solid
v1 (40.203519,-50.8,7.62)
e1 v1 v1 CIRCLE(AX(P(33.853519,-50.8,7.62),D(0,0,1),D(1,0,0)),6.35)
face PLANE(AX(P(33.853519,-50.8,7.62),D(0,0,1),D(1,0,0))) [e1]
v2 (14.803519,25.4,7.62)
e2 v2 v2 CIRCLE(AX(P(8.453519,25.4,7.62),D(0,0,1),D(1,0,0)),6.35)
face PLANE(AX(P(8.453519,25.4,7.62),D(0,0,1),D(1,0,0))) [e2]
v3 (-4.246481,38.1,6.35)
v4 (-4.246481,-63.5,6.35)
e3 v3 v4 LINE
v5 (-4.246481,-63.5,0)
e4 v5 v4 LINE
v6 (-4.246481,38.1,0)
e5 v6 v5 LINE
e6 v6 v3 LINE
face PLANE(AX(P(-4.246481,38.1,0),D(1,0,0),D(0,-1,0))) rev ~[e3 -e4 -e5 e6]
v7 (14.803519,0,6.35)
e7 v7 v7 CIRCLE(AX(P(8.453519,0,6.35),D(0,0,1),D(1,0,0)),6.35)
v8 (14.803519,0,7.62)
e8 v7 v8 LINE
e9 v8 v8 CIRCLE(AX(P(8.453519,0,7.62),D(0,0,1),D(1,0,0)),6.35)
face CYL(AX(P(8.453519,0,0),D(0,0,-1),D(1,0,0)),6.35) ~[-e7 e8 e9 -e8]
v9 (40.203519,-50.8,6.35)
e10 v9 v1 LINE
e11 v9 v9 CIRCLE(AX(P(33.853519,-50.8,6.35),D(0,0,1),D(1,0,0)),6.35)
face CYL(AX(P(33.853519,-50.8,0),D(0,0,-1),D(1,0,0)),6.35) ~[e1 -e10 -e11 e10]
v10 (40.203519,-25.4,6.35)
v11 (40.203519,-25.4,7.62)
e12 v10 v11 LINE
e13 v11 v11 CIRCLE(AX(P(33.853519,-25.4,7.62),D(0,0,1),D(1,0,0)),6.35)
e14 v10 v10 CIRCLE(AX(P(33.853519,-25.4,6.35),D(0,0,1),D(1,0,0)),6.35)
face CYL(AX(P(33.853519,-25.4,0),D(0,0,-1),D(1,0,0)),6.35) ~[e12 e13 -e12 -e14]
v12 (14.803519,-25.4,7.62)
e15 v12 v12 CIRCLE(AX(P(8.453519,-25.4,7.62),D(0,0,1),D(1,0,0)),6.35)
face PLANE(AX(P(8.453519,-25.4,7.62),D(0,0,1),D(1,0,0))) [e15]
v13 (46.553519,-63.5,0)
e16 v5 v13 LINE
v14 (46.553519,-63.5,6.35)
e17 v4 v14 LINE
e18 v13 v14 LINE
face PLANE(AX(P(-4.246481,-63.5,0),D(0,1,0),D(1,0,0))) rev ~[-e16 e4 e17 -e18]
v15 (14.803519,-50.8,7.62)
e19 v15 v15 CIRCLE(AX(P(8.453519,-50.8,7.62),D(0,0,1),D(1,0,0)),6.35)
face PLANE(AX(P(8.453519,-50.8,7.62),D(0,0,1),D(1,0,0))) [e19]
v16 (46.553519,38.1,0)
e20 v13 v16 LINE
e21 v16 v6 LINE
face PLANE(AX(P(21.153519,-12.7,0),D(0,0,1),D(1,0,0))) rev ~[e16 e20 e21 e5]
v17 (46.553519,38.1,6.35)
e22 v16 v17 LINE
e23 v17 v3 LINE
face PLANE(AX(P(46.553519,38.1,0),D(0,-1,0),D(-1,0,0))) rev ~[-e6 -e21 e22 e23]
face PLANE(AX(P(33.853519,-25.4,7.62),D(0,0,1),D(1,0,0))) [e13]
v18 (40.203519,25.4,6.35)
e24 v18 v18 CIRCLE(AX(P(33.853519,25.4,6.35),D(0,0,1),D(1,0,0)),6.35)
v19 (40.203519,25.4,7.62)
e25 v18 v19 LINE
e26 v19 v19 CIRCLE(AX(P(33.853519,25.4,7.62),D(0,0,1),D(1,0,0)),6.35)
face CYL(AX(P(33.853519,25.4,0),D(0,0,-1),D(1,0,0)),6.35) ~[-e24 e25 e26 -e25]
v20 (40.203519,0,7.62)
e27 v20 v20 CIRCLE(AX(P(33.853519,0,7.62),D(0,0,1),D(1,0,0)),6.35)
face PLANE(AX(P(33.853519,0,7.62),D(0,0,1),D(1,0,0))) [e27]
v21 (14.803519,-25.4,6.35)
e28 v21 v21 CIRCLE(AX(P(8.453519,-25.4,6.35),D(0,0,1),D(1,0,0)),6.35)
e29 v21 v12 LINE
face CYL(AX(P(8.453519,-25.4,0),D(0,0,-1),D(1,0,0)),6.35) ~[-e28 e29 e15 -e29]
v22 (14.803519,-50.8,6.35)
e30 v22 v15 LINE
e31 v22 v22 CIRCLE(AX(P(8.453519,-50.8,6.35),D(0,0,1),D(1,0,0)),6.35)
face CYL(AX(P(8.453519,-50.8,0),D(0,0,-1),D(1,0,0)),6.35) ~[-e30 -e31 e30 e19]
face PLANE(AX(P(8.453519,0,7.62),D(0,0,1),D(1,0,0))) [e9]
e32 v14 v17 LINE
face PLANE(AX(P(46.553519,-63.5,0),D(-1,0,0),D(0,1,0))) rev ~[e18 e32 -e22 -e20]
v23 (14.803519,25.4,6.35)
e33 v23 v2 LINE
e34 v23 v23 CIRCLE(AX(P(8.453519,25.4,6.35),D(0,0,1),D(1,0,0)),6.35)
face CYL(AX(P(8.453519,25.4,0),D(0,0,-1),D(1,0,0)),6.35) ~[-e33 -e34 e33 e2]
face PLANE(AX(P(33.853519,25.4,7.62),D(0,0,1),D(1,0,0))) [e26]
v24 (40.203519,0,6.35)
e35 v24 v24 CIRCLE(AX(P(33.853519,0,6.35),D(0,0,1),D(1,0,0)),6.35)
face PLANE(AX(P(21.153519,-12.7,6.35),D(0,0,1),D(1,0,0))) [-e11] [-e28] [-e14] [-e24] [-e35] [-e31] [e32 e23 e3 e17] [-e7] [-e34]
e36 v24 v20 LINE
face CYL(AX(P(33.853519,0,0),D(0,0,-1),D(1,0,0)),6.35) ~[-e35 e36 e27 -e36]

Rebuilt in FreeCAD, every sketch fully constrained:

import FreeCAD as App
import Part
import Sketcher

V = App.Vector
Q = App.Units.Quantity


def add_polygon(sketch, points):
    """Adds a closed chain of lines whose ends are joined by coincident constraints."""
    first, n = sketch.GeometryCount, len(points)
    for a, b in zip(points, points[1:] + points[:1]):
        sketch.addGeometry(Part.LineSegment(App.Vector(*a, 0), App.Vector(*b, 0)), False)
    for i in range(n):
        sketch.addConstraint(Sketcher.Constraint("Coincident", first + i, 2, first + (i + 1) % n, 1))

doc = App.newDocument("Part")
params = doc.addObject("Spreadsheet::Sheet", "Params")
for row, (alias, value) in enumerate([
    ("sketch1_diameter", "0.5 in"),
    ("sketch1_width", "2 in"),
    ("sketch1_height", "4 in"),
    ("pad1_length", "0.25 in"),
    ("sketch2_diameter", "0.5 in"),
    ("pad2_length", "0.3 in"),
], start=1):
    params.set(f"A{row}", alias)
    params.set(f"B{row}", "=" + value)
    params.setAlias(f"B{row}", alias)

body = doc.addObject("PartDesign::Body", "Body")

# Sketch on XY plane
sketch1 = doc.addObject("Sketcher::SketchObject", "Sketch")
body.addObject(sketch1)
sketch1.AttachmentSupport = (doc.XY_Plane, [""])
sketch1.MapMode = "FlatFace"
add_polygon(sketch1, [(-4, 38), (-4, -64), (47, -64), (47, 38)])  # lines 0-3
sketch1.addGeometry(Part.Circle(V(8, -51, 0), V(0, 0, 1), 6), False)  # 4
sketch1.addGeometry(Part.Circle(V(8, -25, 0), V(0, 0, 1), 6), False)  # 5
sketch1.addGeometry(Part.Circle(V(34, -51, 0), V(0, 0, 1), 6), False)  # 6
sketch1.addGeometry(Part.Circle(V(34, -25, 0), V(0, 0, 1), 6), False)  # 7
sketch1.addGeometry(Part.Circle(V(8, 0, 0), V(0, 0, 1), 6), False)  # 8
sketch1.addGeometry(Part.Circle(V(8, 25, 0), V(0, 0, 1), 6), False)  # 9
sketch1.addGeometry(Part.Circle(V(34, 0, 0), V(0, 0, 1), 6), False)  # 10
sketch1.addGeometry(Part.Circle(V(34, 25, 0), V(0, 0, 1), 6), False)  # 11
sketch1.addConstraint([
    Sketcher.Constraint("Vertical", 0),
    Sketcher.Constraint("Horizontal", 1),
    Sketcher.Constraint("Vertical", 2),
    Sketcher.Constraint("Horizontal", 3),
    Sketcher.Constraint("Equal", 4, 5),
    Sketcher.Constraint("Equal", 5, 6),
    Sketcher.Constraint("Equal", 6, 7),
    Sketcher.Constraint("Equal", 7, 8),
    Sketcher.Constraint("Equal", 8, 9),
    Sketcher.Constraint("Equal", 9, 10),
    Sketcher.Constraint("Equal", 10, 11),
    Sketcher.Constraint("Symmetric", 5, 3, 9, 3, -1),
    Sketcher.Constraint("Symmetric", 7, 3, 11, 3, -1),
    Sketcher.Constraint("PointOnObject", 8, 3, -1),
    Sketcher.Constraint("PointOnObject", 10, 3, -1),
    Sketcher.Constraint("Horizontal", 4, 3, 6, 3),
    Sketcher.Constraint("Horizontal", 5, 3, 7, 3),
    Sketcher.Constraint("Vertical", 4, 3, 5, 3),
    Sketcher.Constraint("Vertical", 6, 3, 7, 3),
    Sketcher.Constraint("Vertical", 5, 3, 8, 3),
    Sketcher.Constraint("Vertical", 7, 3, 10, 3),
    Sketcher.Constraint("Diameter", 4, Q("0.5 in")),
    Sketcher.Constraint("DistanceX", 1, 1, 1, 2, Q("2 in")),
    Sketcher.Constraint("DistanceY", 0, 2, 0, 1, Q("4 in")),
    Sketcher.Constraint("DistanceY", 4, 3, -1, 1, Q("2 in")),
    Sketcher.Constraint("DistanceY", 5, 3, -1, 1, Q("1 in")),
    Sketcher.Constraint("DistanceX", 4, 3, 6, 3, Q("1 in")),
    Sketcher.Constraint("DistanceY", 0, 2, -1, 1, Q("2.5 in")),
    Sketcher.Constraint("DistanceX", 0, 2, 4, 3, Q("0.5 in")),
    Sketcher.Constraint("DistanceX", -1, 1, 4, 3, 8.453519),
])
sketch1.setExpression("Constraints[25]", "Params.sketch1_diameter")
sketch1.setExpression("Constraints[26]", "Params.sketch1_width")
sketch1.setExpression("Constraints[27]", "Params.sketch1_height")
pad1 = doc.addObject("PartDesign::Pad", "Pad")
body.addObject(pad1)
pad1.Profile = sketch1
pad1.setExpression("Length", "Params.pad1_length")

# Sketch on XY plane
sketch2 = doc.addObject("Sketcher::SketchObject", "Sketch001")
body.addObject(sketch2)
sketch2.AttachmentSupport = (doc.XY_Plane, [""])
sketch2.MapMode = "FlatFace"
sketch2.addGeometry([
    Part.Circle(V(34, -51, 0), V(0, 0, 1), 6),  # 0
    Part.Circle(V(8, -51, 0), V(0, 0, 1), 6),  # 1
    Part.Circle(V(8, -25, 0), V(0, 0, 1), 6),  # 2
    Part.Circle(V(34, -25, 0), V(0, 0, 1), 6),  # 3
    Part.Circle(V(34, 0, 0), V(0, 0, 1), 6),  # 4
    Part.Circle(V(8, 0, 0), V(0, 0, 1), 6),  # 5
    Part.Circle(V(8, 25, 0), V(0, 0, 1), 6),  # 6
    Part.Circle(V(34, 25, 0), V(0, 0, 1), 6),  # 7
], False)
sketch2.addConstraint([
    Sketcher.Constraint("Equal", 0, 1),
    Sketcher.Constraint("Equal", 1, 2),
    Sketcher.Constraint("Equal", 2, 3),
    Sketcher.Constraint("Equal", 3, 4),
    Sketcher.Constraint("Equal", 4, 5),
    Sketcher.Constraint("Equal", 5, 6),
    Sketcher.Constraint("Equal", 6, 7),
    Sketcher.Constraint("Symmetric", 2, 3, 6, 3, -1),
    Sketcher.Constraint("Symmetric", 3, 3, 7, 3, -1),
    Sketcher.Constraint("PointOnObject", 4, 3, -1),
    Sketcher.Constraint("PointOnObject", 5, 3, -1),
    Sketcher.Constraint("Horizontal", 0, 3, 1, 3),
    Sketcher.Constraint("Horizontal", 2, 3, 3, 3),
    Sketcher.Constraint("Vertical", 1, 3, 2, 3),
    Sketcher.Constraint("Vertical", 0, 3, 3, 3),
    Sketcher.Constraint("Vertical", 3, 3, 4, 3),
    Sketcher.Constraint("Vertical", 2, 3, 5, 3),
    Sketcher.Constraint("Diameter", 0, Q("0.5 in")),
    Sketcher.Constraint("DistanceY", 0, 3, -1, 1, Q("2 in")),
    Sketcher.Constraint("DistanceY", 2, 3, -1, 1, Q("1 in")),
    Sketcher.Constraint("DistanceX", 1, 3, 0, 3, Q("1 in")),
    Sketcher.Constraint("DistanceX", -1, 1, 0, 3, 33.853519),
])
sketch2.setExpression("Constraints[17]", "Params.sketch2_diameter")
pad2 = doc.addObject("PartDesign::Pad", "Pad001")
body.addObject(pad2)
pad2.Profile = sketch2
pad2.setExpression("Length", "Params.pad2_length")

doc.recompute()
